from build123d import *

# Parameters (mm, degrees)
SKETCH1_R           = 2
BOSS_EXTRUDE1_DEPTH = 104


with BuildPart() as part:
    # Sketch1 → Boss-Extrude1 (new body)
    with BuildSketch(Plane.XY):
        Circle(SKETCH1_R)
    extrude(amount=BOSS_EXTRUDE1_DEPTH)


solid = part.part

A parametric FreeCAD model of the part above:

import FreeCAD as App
import Part
import Sketcher

V = App.Vector
Q = App.Units.Quantity

doc = App.newDocument("Part")
body = doc.addObject("PartDesign::Body", "Body")

# Sketch on XY plane
sketch1 = body.newObject("Sketcher::SketchObject", "Sketch")
sketch1.AttachmentSupport = (doc.getObject("XY_Plane"), [""])
sketch1.MapMode = "FlatFace"
sketch1.addGeometry(Part.Circle(V(0, 0, 0), V(0, 0, 1), 2), False)
sketch1.addConstraint(Sketcher.Constraint("Coincident", 0, 3, -1, 1))
sketch1.addConstraint(Sketcher.Constraint("Diameter", 0, Q("4 mm")))
pad1 = body.newObject("PartDesign::Pad", "Pad")
pad1.Profile = sketch1
pad1.Length = 104

doc.recompute()
